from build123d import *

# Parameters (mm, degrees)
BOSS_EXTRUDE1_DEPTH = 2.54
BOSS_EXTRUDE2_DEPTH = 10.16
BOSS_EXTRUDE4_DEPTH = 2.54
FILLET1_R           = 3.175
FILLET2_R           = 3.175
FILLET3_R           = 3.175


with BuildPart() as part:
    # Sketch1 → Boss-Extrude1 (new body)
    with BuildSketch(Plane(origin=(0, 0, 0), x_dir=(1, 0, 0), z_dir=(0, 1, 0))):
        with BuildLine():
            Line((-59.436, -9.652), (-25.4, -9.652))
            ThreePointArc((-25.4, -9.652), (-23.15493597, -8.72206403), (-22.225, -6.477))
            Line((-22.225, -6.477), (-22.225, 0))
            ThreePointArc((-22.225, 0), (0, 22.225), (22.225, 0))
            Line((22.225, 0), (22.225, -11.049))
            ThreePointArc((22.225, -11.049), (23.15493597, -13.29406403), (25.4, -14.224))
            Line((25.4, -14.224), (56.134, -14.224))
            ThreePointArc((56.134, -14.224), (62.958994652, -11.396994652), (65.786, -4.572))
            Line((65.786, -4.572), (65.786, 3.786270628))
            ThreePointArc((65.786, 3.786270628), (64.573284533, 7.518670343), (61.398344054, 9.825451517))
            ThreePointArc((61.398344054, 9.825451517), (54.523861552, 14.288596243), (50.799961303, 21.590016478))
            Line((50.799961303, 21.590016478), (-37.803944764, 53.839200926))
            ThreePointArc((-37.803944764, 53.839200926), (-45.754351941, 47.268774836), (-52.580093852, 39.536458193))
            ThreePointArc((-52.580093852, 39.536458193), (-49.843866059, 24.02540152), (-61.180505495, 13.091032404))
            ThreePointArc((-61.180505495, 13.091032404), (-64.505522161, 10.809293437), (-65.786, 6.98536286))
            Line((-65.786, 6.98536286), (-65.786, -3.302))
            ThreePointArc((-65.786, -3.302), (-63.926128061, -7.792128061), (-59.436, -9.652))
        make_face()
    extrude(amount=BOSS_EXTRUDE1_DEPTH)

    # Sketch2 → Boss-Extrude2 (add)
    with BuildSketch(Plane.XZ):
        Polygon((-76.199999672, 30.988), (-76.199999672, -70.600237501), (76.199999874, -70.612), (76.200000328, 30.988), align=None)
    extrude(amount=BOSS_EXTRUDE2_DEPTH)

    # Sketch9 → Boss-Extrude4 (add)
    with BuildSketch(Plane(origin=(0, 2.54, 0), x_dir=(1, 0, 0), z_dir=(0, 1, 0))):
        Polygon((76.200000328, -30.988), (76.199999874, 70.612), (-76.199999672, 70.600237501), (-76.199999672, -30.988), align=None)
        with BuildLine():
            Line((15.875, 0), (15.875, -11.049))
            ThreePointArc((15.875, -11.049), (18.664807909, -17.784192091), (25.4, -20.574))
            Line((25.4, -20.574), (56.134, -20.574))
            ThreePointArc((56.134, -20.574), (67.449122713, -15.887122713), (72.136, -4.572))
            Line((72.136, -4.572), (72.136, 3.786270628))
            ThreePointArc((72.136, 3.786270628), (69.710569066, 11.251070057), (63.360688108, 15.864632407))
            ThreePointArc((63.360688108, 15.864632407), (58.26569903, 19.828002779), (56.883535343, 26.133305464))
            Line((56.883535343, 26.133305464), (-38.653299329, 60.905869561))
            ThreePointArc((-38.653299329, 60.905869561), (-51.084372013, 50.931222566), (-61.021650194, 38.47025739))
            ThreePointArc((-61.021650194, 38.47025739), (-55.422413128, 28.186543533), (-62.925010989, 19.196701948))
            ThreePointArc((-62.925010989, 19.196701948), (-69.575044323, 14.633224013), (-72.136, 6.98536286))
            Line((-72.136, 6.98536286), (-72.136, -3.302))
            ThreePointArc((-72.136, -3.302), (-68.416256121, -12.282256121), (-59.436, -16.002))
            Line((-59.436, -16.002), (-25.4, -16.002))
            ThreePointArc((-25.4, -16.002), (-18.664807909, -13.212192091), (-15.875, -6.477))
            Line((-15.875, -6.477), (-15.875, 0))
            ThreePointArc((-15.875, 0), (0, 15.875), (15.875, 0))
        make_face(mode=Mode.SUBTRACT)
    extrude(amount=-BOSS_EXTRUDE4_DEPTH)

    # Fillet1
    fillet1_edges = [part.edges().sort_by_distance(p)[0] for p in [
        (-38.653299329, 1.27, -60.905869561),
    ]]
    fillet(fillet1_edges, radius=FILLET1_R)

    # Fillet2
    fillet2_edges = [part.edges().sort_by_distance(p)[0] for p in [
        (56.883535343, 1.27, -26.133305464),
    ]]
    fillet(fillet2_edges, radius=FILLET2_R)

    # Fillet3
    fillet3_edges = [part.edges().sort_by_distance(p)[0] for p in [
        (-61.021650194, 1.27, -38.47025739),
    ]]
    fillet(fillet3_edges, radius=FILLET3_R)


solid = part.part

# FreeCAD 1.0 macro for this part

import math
import FreeCAD as App
import Part
import Sketcher
Q = App.Units.Quantity


def edges_at(feature, points):
    """Names of the edges that pass closest to the given points."""
    edges = feature.Shape.Edges
    near = lambda p: min(range(len(edges)), key=lambda i: edges[i].distToShape(Part.Vertex(*p))[0])
    return sorted({f"Edge{near(p) + 1}" for p in points})

doc = App.newDocument("Part")
body = doc.addObject("PartDesign::Body", "Body")

sketch1 = doc.addObject("Sketcher::SketchObject", "Sketch")
body.addObject(sketch1)
sketch1.AttachmentSupport = (doc.XZ_Plane, [""])
sketch1.MapMode = "FlatFace"
sketch1.addGeometry(Part.LineSegment(App.Vector(-59.4, 9.7, 0), App.Vector(-25.4, 9.7, 0)), False)
sketch1.addGeometry(Part.ArcOfCircle(Part.Circle(App.Vector(-25.4, 6.5, 0), App.Vector(0, 0, 1), 3.2), math.radians(0), math.radians(90)), False)
sketch1.addGeometry(Part.LineSegment(App.Vector(-22.2, 6.5, 0), App.Vector(-22.2, 0, 0)), False)
sketch1.addGeometry(Part.ArcOfCircle(Part.Circle(App.Vector(0, 0, 0), App.Vector(0, 0, 1), 22.2), math.radians(180), math.radians(360)), False)
sketch1.addGeometry(Part.LineSegment(App.Vector(22.2, 0, 0), App.Vector(22.2, 11, 0)), False)
sketch1.addGeometry(Part.ArcOfCircle(Part.Circle(App.Vector(25.4, 11, 0), App.Vector(0, 0, 1), 3.2), math.radians(90), math.radians(180)), False)
sketch1.addGeometry(Part.LineSegment(App.Vector(25.4, 14.2, 0), App.Vector(56.1, 14.2, 0)), False)
sketch1.addGeometry(Part.ArcOfCircle(Part.Circle(App.Vector(56.1, 4.6, 0), App.Vector(0, 0, 1), 9.7), math.radians(0), math.radians(90)), False)
sketch1.addGeometry(Part.LineSegment(App.Vector(65.8, 4.6, 0), App.Vector(65.8, -3.8, 0)), False)
sketch1.addGeometry(Part.ArcOfCircle(Part.Circle(App.Vector(59.4, -3.8, 0), App.Vector(0, 0, 1), 6.3), math.radians(-72), math.radians(0)), False)
sketch1.addGeometry(Part.ArcOfCircle(Part.Circle(App.Vector(66.3, -24.9, 0), App.Vector(0, 0, 1), 15.8), math.radians(108), math.radians(168)), False)
sketch1.addGeometry(Part.LineSegment(App.Vector(50.8, -21.6, 0), App.Vector(-37.8, -53.8, 0)), False)
sketch1.addGeometry(Part.ArcOfCircle(Part.Circle(App.Vector(0, 0, 0), App.Vector(0, 0, 1), 65.8), math.radians(-143.06), math.radians(-125.08)), False)
sketch1.addGeometry(Part.ArcOfCircle(Part.Circle(App.Vector(-65.8, -29.2, 0), App.Vector(0, 0, 1), 16.8), math.radians(-38), math.radians(74)), False)
sketch1.addGeometry(Part.ArcOfCircle(Part.Circle(App.Vector(-59.4, -7, 0), App.Vector(0, 0, 1), 6.4), math.radians(-180), math.radians(-106)), False)
sketch1.addGeometry(Part.LineSegment(App.Vector(-65.8, -7, 0), App.Vector(-65.8, 3.3, 0)), False)
sketch1.addGeometry(Part.ArcOfCircle(Part.Circle(App.Vector(-59.4, 3.3, 0), App.Vector(0, 0, 1), 6.3), math.radians(90), math.radians(180)), False)
sketch1.addConstraint(Sketcher.Constraint("Tangent", 0, 2, 1, 2))
sketch1.addConstraint(Sketcher.Constraint("Tangent", 1, 1, 2, 1))
sketch1.addConstraint(Sketcher.Constraint("Tangent", 2, 2, 3, 1))
sketch1.addConstraint(Sketcher.Constraint("Tangent", 3, 2, 4, 1))
sketch1.addConstraint(Sketcher.Constraint("Tangent", 4, 2, 5, 2))
sketch1.addConstraint(Sketcher.Constraint("Tangent", 5, 1, 6, 1))
sketch1.addConstraint(Sketcher.Constraint("Tangent", 6, 2, 7, 2))
sketch1.addConstraint(Sketcher.Constraint("Tangent", 7, 1, 8, 1))
sketch1.addConstraint(Sketcher.Constraint("Tangent", 8, 2, 9, 2))
sketch1.addConstraint(Sketcher.Constraint("Tangent", 9, 1, 10, 1))
sketch1.addConstraint(Sketcher.Constraint("Coincident", 10, 2, 11, 1))
sketch1.addConstraint(Sketcher.Constraint("Coincident", 11, 2, 12, 2))
sketch1.addConstraint(Sketcher.Constraint("Coincident", 12, 1, 13, 1))
sketch1.addConstraint(Sketcher.Constraint("Tangent", 13, 2, 14, 2))
sketch1.addConstraint(Sketcher.Constraint("Tangent", 14, 1, 15, 1))
sketch1.addConstraint(Sketcher.Constraint("Tangent", 15, 2, 16, 2))
sketch1.addConstraint(Sketcher.Constraint("Tangent", 16, 1, 0, 1))
sketch1.addConstraint(Sketcher.Constraint("Horizontal", 0))
sketch1.addConstraint(Sketcher.Constraint("Vertical", 2))
sketch1.addConstraint(Sketcher.Constraint("Vertical", 4))
sketch1.addConstraint(Sketcher.Constraint("Horizontal", 6))
sketch1.addConstraint(Sketcher.Constraint("Vertical", 8))
sketch1.addConstraint(Sketcher.Constraint("Vertical", 15))
sketch1.addConstraint(Sketcher.Constraint("Coincident", 3, 3, -1, 1))
sketch1.addConstraint(Sketcher.Constraint("Coincident", 12, 3, -1, 1))
sketch1.addConstraint(Sketcher.Constraint("Equal", 1, 5))
sketch1.addConstraint(Sketcher.Constraint("Equal", 9, 14))
sketch1.addConstraint(Sketcher.Constraint("Equal", 14, 16))
sketch1.addConstraint(Sketcher.Constraint("Vertical", 13, 3, 14, 1))
sketch1.addConstraint(Sketcher.Constraint("Radius", 7, Q("0.38 in")))
sketch1.addConstraint(Sketcher.Constraint("Radius", 9, Q("0.25 in")))
sketch1.addConstraint(Sketcher.Constraint("Radius", 12, Q("2.59 in")))
sketch1.addConstraint(Sketcher.Constraint("Radius", 13, Q("0.66 in")))
sketch1.addConstraint(Sketcher.Constraint("DistanceX", 1, 3, -1, 1, Q("1 in")))
sketch1.addConstraint(Sketcher.Constraint("Angle", 11, Q("-160 deg")))
sketch1.addConstraint(Sketcher.Constraint("Radius", 1, Q("0.125 in")))
sketch1.addConstraint(Sketcher.Constraint("DistanceX", 0, 1, 0, 2, Q("1.34 in")))
sketch1.addConstraint(Sketcher.Constraint("DistanceX", 6, 1, 6, 2, Q("1.21 in")))
sketch1.addConstraint(Sketcher.Constraint("Radius", 10, Q("0.6237 in")))
sketch1.addConstraint(Sketcher.Constraint("DistanceX", 7, 3, 10, 3, Q("0.4 in")))
sketch1.addConstraint(Sketcher.Constraint("DistanceY", 2, 2, 2, 1, Q("0.255 in")))
sketch1.addConstraint(Sketcher.Constraint("DistanceY", 4, 1, 4, 2, Q("0.435 in")))
sketch1.addConstraint(Sketcher.Constraint("DistanceY", 10, 3, -1, 1, Q("0.98 in")))
sketch1.addConstraint(Sketcher.Constraint("DistanceY", 13, 3, -1, 1, Q("1.15 in")))
sketch1.addConstraint(Sketcher.Constraint("DistanceY", 11, 2, 12, 1, Q("0.5631001 in")))
pad1 = doc.addObject("PartDesign::Pad", "Pad")
body.addObject(pad1)
pad1.Profile = sketch1
pad1.Length = Q("0.1 in")
pad1.Reversed = True

sketch2 = doc.addObject("Sketcher::SketchObject", "Sketch001")
body.addObject(sketch2)
sketch2.AttachmentSupport = (doc.XZ_Plane, [""])
sketch2.MapMode = "FlatFace"
sketch2.addGeometry(Part.LineSegment(App.Vector(-76, 31, 0), App.Vector(-76, -71, 0)), False)
sketch2.addGeometry(Part.LineSegment(App.Vector(-76, -71, 0), App.Vector(76, -71, 0)), False)
sketch2.addGeometry(Part.LineSegment(App.Vector(76, -71, 0), App.Vector(76, 31, 0)), False)
sketch2.addGeometry(Part.LineSegment(App.Vector(76, 31, 0), App.Vector(-76, 31, 0)), False)
sketch2.addConstraint(Sketcher.Constraint("Coincident", 0, 2, 1, 1))
sketch2.addConstraint(Sketcher.Constraint("Coincident", 1, 2, 2, 1))
sketch2.addConstraint(Sketcher.Constraint("Coincident", 2, 2, 3, 1))
sketch2.addConstraint(Sketcher.Constraint("Coincident", 3, 2, 0, 1))
sketch2.addConstraint(Sketcher.Constraint("Vertical", 0))
sketch2.addConstraint(Sketcher.Constraint("Vertical", 2))
sketch2.addConstraint(Sketcher.Constraint("Horizontal", 3))
sketch2.addConstraint(Sketcher.Constraint("DistanceX", 3, 2, 3, 1, Q("6 in")))
sketch2.addConstraint(Sketcher.Constraint("DistanceY", 2, 1, 2, 2, Q("4 in")))
sketch2.addConstraint(Sketcher.Constraint("DistanceX", 0, 2, -1, 1, Q("3 in")))
sketch2.addConstraint(Sketcher.Constraint("DistanceY", 1, 2, -1, 1, Q("2.78 in")))
sketch2.addConstraint(Sketcher.Constraint("DistanceY", 0, 2, 0, 1, Q("101.588238 mm")))
pad2 = doc.addObject("PartDesign::Pad", "Pad001")
body.addObject(pad2)
pad2.Profile = sketch2
pad2.Length = Q("0.4 in")

sketch3 = doc.addObject("Sketcher::SketchObject", "Sketch002")
body.addObject(sketch3)
sketch3.AttachmentSupport = (doc.XZ_Plane, [""])
sketch3.MapMode = "FlatFace"
sketch3.AttachmentOffset = App.Placement(App.Vector(0, 0, -0.1 * 25.4), App.Rotation())
sketch3.addGeometry(Part.LineSegment(App.Vector(76, 31, 0), App.Vector(76, -71, 0)), False)
sketch3.addGeometry(Part.LineSegment(App.Vector(76, -71, 0), App.Vector(-76, -71, 0)), False)
sketch3.addGeometry(Part.LineSegment(App.Vector(-76, -71, 0), App.Vector(-76, 31, 0)), False)
sketch3.addGeometry(Part.LineSegment(App.Vector(-76, 31, 0), App.Vector(76, 31, 0)), False)
sketch3.addGeometry(Part.LineSegment(App.Vector(16, 11, 0), App.Vector(16, 0, 0)), False)
sketch3.addGeometry(Part.ArcOfCircle(Part.Circle(App.Vector(0, 0, 0), App.Vector(0, 0, 1), 16), math.radians(180), math.radians(360)), False)
sketch3.addGeometry(Part.LineSegment(App.Vector(-16, 0, 0), App.Vector(-16, 6, 0)), False)
sketch3.addGeometry(Part.ArcOfCircle(Part.Circle(App.Vector(-25, 6, 0), App.Vector(0, 0, 1), 10), math.radians(0), math.radians(90)), False)
sketch3.addGeometry(Part.LineSegment(App.Vector(-25, 16, 0), App.Vector(-59, 16, 0)), False)
sketch3.addGeometry(Part.ArcOfCircle(Part.Circle(App.Vector(-59, 3, 0), App.Vector(0, 0, 1), 13), math.radians(90), math.radians(180)), False)
sketch3.addGeometry(Part.LineSegment(App.Vector(-72, 3, 0), App.Vector(-72, -7, 0)), False)
sketch3.addGeometry(Part.ArcOfCircle(Part.Circle(App.Vector(-59, -7, 0), App.Vector(0, 0, 1), 13), math.radians(180), math.radians(254)), False)
sketch3.addGeometry(Part.ArcOfCircle(Part.Circle(App.Vector(-66, -29, 0), App.Vector(0, 0, 1), 10), math.radians(-63), math.radians(74)), False)
sketch3.addGeometry(Part.ArcOfCircle(Part.Circle(App.Vector(0, 0, 0), App.Vector(0, 0, 1), 72), math.radians(-148), math.radians(-122)), False)
sketch3.addGeometry(Part.LineSegment(App.Vector(-39, -61, 0), App.Vector(57, -26, 0)), False)
sketch3.addGeometry(Part.ArcOfCircle(Part.Circle(App.Vector(66, -25, 0), App.Vector(0, 0, 1), 9), math.radians(108), math.radians(188)), False)
sketch3.addGeometry(Part.ArcOfCircle(Part.Circle(App.Vector(59, -4, 0), App.Vector(0, 0, 1), 13), math.radians(-72), math.radians(0)), False)
sketch3.addGeometry(Part.LineSegment(App.Vector(72, -4, 0), App.Vector(72, 5, 0)), False)
sketch3.addGeometry(Part.ArcOfCircle(Part.Circle(App.Vector(56, 5, 0), App.Vector(0, 0, 1), 16), math.radians(0), math.radians(90)), False)
sketch3.addGeometry(Part.LineSegment(App.Vector(56, 21, 0), App.Vector(25, 21, 0)), False)
sketch3.addGeometry(Part.ArcOfCircle(Part.Circle(App.Vector(25, 11, 0), App.Vector(0, 0, 1), 10), math.radians(90), math.radians(180)), False)
sketch3.addConstraint(Sketcher.Constraint("Coincident", 0, 2, 1, 1))
sketch3.addConstraint(Sketcher.Constraint("Coincident", 1, 2, 2, 1))
sketch3.addConstraint(Sketcher.Constraint("Coincident", 2, 2, 3, 1))
sketch3.addConstraint(Sketcher.Constraint("Coincident", 3, 2, 0, 1))
sketch3.addConstraint(Sketcher.Constraint("Tangent", 4, 2, 5, 2))
sketch3.addConstraint(Sketcher.Constraint("Tangent", 5, 1, 6, 1))
sketch3.addConstraint(Sketcher.Constraint("Tangent", 6, 2, 7, 1))
sketch3.addConstraint(Sketcher.Constraint("Tangent", 7, 2, 8, 1))
sketch3.addConstraint(Sketcher.Constraint("Tangent", 8, 2, 9, 1))
sketch3.addConstraint(Sketcher.Constraint("Tangent", 9, 2, 10, 1))
sketch3.addConstraint(Sketcher.Constraint("Tangent", 10, 2, 11, 1))
sketch3.addConstraint(Sketcher.Constraint("Tangent", 11, 2, 12, 2))
sketch3.addConstraint(Sketcher.Constraint("Coincident", 12, 1, 13, 1))
sketch3.addConstraint(Sketcher.Constraint("Coincident", 13, 2, 14, 1))
sketch3.addConstraint(Sketcher.Constraint("Coincident", 14, 2, 15, 2))
sketch3.addConstraint(Sketcher.Constraint("Tangent", 15, 1, 16, 1))
sketch3.addConstraint(Sketcher.Constraint("Tangent", 16, 2, 17, 1))
sketch3.addConstraint(Sketcher.Constraint("Tangent", 17, 2, 18, 1))
sketch3.addConstraint(Sketcher.Constraint("Tangent", 18, 2, 19, 1))
sketch3.addConstraint(Sketcher.Constraint("Tangent", 19, 2, 20, 1))
sketch3.addConstraint(Sketcher.Constraint("Tangent", 20, 2, 4, 1))
sketch3.addConstraint(Sketcher.Constraint("Vertical", 0))
sketch3.addConstraint(Sketcher.Constraint("Vertical", 2))
sketch3.addConstraint(Sketcher.Constraint("Horizontal", 3))
sketch3.addConstraint(Sketcher.Constraint("Vertical", 4))
sketch3.addConstraint(Sketcher.Constraint("Vertical", 6))
sketch3.addConstraint(Sketcher.Constraint("Horizontal", 8))
sketch3.addConstraint(Sketcher.Constraint("Vertical", 10))
sketch3.addConstraint(Sketcher.Constraint("Vertical", 17))
sketch3.addConstraint(Sketcher.Constraint("Horizontal", 19))
sketch3.addConstraint(Sketcher.Constraint("Coincident", 5, 3, -1, 1))
sketch3.addConstraint(Sketcher.Constraint("Coincident", 13, 3, -1, 1))
sketch3.addConstraint(Sketcher.Constraint("Equal", 9, 11))
sketch3.addConstraint(Sketcher.Constraint("Equal", 11, 16))
sketch3.addConstraint(Sketcher.Constraint("Equal", 7, 20))
sketch3.addConstraint(Sketcher.Constraint("Radius", 9, Q("0.5 in")))
sketch3.addConstraint(Sketcher.Constraint("DistanceX", 3, 1, 3, 2, Q("6 in")))
sketch3.addConstraint(Sketcher.Constraint("DistanceY", 0, 2, 0, 1, Q("4 in")))
sketch3.addConstraint(Sketcher.Constraint("Radius", 12, Q("0.41 in")))
sketch3.addConstraint(Sketcher.Constraint("Radius", 13, Q("2.84 in")))
sketch3.addConstraint(Sketcher.Constraint("Radius", 18, Q("0.63 in")))
sketch3.addConstraint(Sketcher.Constraint("DistanceX", 7, 3, -1, 1, Q("1 in")))
sketch3.addConstraint(Sketcher.Constraint("DistanceX", -1, 1, 0, 2, Q("3 in")))
sketch3.addConstraint(Sketcher.Constraint("Angle", 14, Q("20 deg")))
sketch3.addConstraint(Sketcher.Constraint("Radius", 5, Q("0.625 in")))
sketch3.addConstraint(Sketcher.Constraint("DistanceX", 8, 2, 8, 1, Q("1.34 in")))
sketch3.addConstraint(Sketcher.Constraint("DistanceX", 19, 2, 19, 1, Q("1.21 in")))
sketch3.addConstraint(Sketcher.Constraint("Radius", 15, Q("0.3737 in")))
sketch3.addConstraint(Sketcher.Constraint("DistanceX", 18, 3, 15, 3, Q("0.4 in")))
sketch3.addConstraint(Sketcher.Constraint("DistanceY", 0, 2, 15, 3, Q("1.8 in")))
sketch3.addConstraint(Sketcher.Constraint("DistanceY", 4, 2, 4, 1, Q("0.435 in")))
sketch3.addConstraint(Sketcher.Constraint("DistanceY", 6, 1, 6, 2, Q("0.255 in")))
sketch3.addConstraint(Sketcher.Constraint("DistanceX", 12, 3, -1, 1, Q("2.59 in")))
sketch3.addConstraint(Sketcher.Constraint("DistanceY", 12, 3, -1, 1, Q("1.15 in")))
sketch3.addConstraint(Sketcher.Constraint("DistanceY", 15, 3, -1, 1, Q("0.98 in")))
sketch3.addConstraint(Sketcher.Constraint("DistanceX", 13, 2, -1, 1, Q("38.653299 mm")))
sketch3.addConstraint(Sketcher.Constraint("DistanceY", 2, 1, 2, 2, Q("101.588238 mm")))
pad3 = doc.addObject("PartDesign::Pad", "Pad002")
body.addObject(pad3)
pad3.Profile = sketch3
pad3.Length = Q("0.1 in")
doc.recompute()

fillet = doc.addObject("PartDesign::Fillet", "Fillet")
body.addObject(fillet)
fillet.Base = (pad3, edges_at(pad3, [(-38.653, 1.27, -60.906)]))
fillet.Radius = Q("0.125 in")
doc.recompute()

fillet2 = doc.addObject("PartDesign::Fillet", "Fillet001")
body.addObject(fillet2)
fillet2.Base = (fillet, edges_at(fillet, [(56.884, 1.27, -26.133)]))
fillet2.Radius = Q("0.125 in")
doc.recompute()

fillet3 = doc.addObject("PartDesign::Fillet", "Fillet002")
body.addObject(fillet3)
fillet3.Base = (fillet2, edges_at(fillet2, [(-61.022, 1.27, -38.47)]))
fillet3.Radius = Q("0.125 in")

doc.recompute()
